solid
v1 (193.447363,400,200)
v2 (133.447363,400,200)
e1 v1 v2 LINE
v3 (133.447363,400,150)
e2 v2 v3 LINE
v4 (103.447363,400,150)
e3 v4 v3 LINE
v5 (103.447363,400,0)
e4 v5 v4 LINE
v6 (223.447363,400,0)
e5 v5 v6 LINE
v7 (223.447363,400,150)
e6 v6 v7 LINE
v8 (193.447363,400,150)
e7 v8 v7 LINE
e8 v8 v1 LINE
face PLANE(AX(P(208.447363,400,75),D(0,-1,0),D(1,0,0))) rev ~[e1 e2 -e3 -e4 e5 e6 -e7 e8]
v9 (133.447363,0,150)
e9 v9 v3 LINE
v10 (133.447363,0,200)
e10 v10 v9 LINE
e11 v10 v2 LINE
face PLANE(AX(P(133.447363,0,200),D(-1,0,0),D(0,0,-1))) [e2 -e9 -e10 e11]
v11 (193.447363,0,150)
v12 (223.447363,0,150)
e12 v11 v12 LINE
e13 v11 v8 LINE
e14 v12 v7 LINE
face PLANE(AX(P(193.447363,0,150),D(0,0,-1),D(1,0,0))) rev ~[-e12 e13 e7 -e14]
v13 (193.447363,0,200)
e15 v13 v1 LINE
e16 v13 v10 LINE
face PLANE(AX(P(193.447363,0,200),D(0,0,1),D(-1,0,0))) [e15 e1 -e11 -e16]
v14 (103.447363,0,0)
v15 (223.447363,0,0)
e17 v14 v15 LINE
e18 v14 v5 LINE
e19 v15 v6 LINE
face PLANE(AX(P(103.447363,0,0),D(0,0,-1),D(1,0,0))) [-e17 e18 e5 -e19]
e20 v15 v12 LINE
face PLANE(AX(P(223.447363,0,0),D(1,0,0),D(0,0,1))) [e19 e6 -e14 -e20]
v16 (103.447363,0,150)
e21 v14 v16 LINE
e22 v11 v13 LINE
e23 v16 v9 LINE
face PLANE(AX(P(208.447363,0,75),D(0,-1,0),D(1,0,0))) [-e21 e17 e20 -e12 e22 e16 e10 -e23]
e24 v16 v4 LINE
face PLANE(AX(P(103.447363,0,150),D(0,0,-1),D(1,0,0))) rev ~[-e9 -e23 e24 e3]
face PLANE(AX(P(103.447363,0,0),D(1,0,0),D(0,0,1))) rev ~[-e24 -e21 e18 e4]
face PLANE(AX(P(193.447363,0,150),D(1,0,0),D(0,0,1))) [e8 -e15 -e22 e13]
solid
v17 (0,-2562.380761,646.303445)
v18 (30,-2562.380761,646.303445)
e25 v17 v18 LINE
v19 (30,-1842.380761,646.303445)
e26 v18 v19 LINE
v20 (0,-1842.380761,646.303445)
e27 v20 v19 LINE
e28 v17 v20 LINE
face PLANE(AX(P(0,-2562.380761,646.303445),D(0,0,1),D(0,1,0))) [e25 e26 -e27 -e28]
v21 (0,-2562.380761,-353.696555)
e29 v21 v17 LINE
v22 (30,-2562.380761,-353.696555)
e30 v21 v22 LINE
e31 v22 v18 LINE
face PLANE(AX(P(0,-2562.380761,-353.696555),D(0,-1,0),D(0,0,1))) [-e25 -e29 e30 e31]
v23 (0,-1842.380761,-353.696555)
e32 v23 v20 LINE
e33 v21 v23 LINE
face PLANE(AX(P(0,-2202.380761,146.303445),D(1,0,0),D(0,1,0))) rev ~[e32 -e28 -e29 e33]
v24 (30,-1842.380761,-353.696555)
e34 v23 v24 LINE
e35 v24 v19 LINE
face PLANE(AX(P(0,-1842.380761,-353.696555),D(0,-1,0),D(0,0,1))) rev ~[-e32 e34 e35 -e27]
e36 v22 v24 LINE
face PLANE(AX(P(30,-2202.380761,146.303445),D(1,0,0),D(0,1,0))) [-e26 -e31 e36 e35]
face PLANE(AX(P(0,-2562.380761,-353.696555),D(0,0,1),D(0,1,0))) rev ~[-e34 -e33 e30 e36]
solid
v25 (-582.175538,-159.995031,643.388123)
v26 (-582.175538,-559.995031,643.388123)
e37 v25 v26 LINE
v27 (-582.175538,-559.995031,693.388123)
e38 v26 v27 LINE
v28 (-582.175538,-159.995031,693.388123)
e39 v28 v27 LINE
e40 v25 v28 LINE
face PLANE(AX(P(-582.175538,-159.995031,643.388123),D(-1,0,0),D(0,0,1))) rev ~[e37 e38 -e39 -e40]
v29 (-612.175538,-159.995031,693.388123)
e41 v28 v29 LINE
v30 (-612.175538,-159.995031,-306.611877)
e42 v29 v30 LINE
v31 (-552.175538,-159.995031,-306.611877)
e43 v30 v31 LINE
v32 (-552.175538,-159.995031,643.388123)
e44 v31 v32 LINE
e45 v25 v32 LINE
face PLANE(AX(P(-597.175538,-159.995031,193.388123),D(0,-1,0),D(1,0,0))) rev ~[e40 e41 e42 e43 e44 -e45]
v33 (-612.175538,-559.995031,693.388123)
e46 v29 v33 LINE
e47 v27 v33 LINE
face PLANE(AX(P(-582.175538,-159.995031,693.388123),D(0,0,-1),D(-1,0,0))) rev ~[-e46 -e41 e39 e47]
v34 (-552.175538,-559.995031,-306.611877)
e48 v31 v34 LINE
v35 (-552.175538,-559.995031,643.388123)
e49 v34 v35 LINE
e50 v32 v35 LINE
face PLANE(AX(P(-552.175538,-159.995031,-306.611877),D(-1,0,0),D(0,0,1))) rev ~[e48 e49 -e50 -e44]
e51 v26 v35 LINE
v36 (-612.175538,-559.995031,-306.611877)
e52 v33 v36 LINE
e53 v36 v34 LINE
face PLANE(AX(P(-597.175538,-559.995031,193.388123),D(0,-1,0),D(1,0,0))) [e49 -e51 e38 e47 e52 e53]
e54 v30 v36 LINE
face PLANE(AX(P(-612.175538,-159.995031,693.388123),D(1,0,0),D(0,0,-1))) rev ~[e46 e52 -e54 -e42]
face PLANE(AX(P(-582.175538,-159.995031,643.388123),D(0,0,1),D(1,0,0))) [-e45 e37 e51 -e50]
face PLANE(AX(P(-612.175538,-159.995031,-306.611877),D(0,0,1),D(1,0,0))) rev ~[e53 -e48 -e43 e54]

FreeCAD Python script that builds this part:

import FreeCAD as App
import Part
import Sketcher
Q = App.Units.Quantity

doc = App.newDocument("Part")
body = doc.addObject("PartDesign::Body", "Body")

sketch1 = body.newObject("Sketcher::SketchObject", "Sketch")
sketch1.AttachmentSupport = (doc.getObject("YZ_Plane"), [""])
sketch1.MapMode = "FlatFace"
sketch1.addGeometry(Part.LineSegment(App.Vector(-160, 677, 0), App.Vector(-160, -323, 0)), False)
sketch1.addGeometry(Part.LineSegment(App.Vector(-160, -323, 0), App.Vector(240, -323, 0)), False)
sketch1.addGeometry(Part.LineSegment(App.Vector(240, -323, 0), App.Vector(240, 677, 0)), False)
sketch1.addGeometry(Part.LineSegment(App.Vector(240, 677, 0), App.Vector(-160, 677, 0)), False)
sketch1.addConstraint(Sketcher.Constraint("Coincident", 0, 2, 1, 1))
sketch1.addConstraint(Sketcher.Constraint("Coincident", 1, 2, 2, 1))
sketch1.addConstraint(Sketcher.Constraint("Coincident", 2, 2, 3, 1))
sketch1.addConstraint(Sketcher.Constraint("Coincident", 3, 2, 0, 1))
sketch1.addConstraint(Sketcher.Constraint("Vertical", 0))
sketch1.addConstraint(Sketcher.Constraint("Horizontal", 1))
sketch1.addConstraint(Sketcher.Constraint("Vertical", 2))
sketch1.addConstraint(Sketcher.Constraint("Horizontal", 3))
sketch1.addConstraint(Sketcher.Constraint("DistanceX", 1, 1, 1, 2, Q("400 mm")))
sketch1.addConstraint(Sketcher.Constraint("DistanceY", 0, 2, 0, 1, Q("1000 mm")))
sketch1.addConstraint(Sketcher.Constraint("DistanceX", 0, 2, -1, 1, Q("159.995031 mm")))
sketch1.addConstraint(Sketcher.Constraint("DistanceY", 0, 2, -1, 1, Q("322.868704 mm")))
pad1 = body.newObject("PartDesign::Pad", "Pad")
pad1.Profile = sketch1
pad1.Length = 50
body2 = doc.addObject("PartDesign::Body", "Body001")

sketch2 = body2.newObject("Sketcher::SketchObject", "Sketch001")
sketch2.AttachmentSupport = (doc.getObject("XZ_Plane001"), [""])
sketch2.MapMode = "FlatFace"
sketch2.AttachmentOffset = App.Placement(App.Vector(0, 0, 159.995031), App.Rotation())
sketch2.addGeometry(Part.LineSegment(App.Vector(-582, 693, 0), App.Vector(-612, 693, 0)), False)
sketch2.addGeometry(Part.LineSegment(App.Vector(-612, 693, 0), App.Vector(-612, -307, 0)), False)
sketch2.addGeometry(Part.LineSegment(App.Vector(-612, -307, 0), App.Vector(-552, -307, 0)), False)
sketch2.addGeometry(Part.LineSegment(App.Vector(-552, -307, 0), App.Vector(-552, 643, 0)), False)
sketch2.addGeometry(Part.LineSegment(App.Vector(-552, 643, 0), App.Vector(-582, 643, 0)), False)
sketch2.addGeometry(Part.LineSegment(App.Vector(-582, 643, 0), App.Vector(-582, 693, 0)), False)
sketch2.addConstraint(Sketcher.Constraint("Coincident", 0, 2, 1, 1))
sketch2.addConstraint(Sketcher.Constraint("Coincident", 1, 2, 2, 1))
sketch2.addConstraint(Sketcher.Constraint("Coincident", 2, 2, 3, 1))
sketch2.addConstraint(Sketcher.Constraint("Coincident", 3, 2, 4, 1))
sketch2.addConstraint(Sketcher.Constraint("Coincident", 4, 2, 5, 1))
sketch2.addConstraint(Sketcher.Constraint("Coincident", 5, 2, 0, 1))
sketch2.addConstraint(Sketcher.Constraint("Horizontal", 0))
sketch2.addConstraint(Sketcher.Constraint("Vertical", 1))
sketch2.addConstraint(Sketcher.Constraint("Horizontal", 2))
sketch2.addConstraint(Sketcher.Constraint("Vertical", 3))
sketch2.addConstraint(Sketcher.Constraint("Horizontal", 4))
sketch2.addConstraint(Sketcher.Constraint("Vertical", 5))
sketch2.addConstraint(Sketcher.Constraint("Equal", 0, 4))
sketch2.addConstraint(Sketcher.Constraint("DistanceX", 0, 2, 0, 1, Q("30 mm")))
sketch2.addConstraint(Sketcher.Constraint("DistanceY", 1, 2, 1, 1, Q("1000 mm")))
sketch2.addConstraint(Sketcher.Constraint("DistanceY", 3, 1, 3, 2, Q("950 mm")))
sketch2.addConstraint(Sketcher.Constraint("DistanceX", 0, 2, -1, 1, Q("612.175538 mm")))
sketch2.addConstraint(Sketcher.Constraint("DistanceY", -1, 1, 0, 2, Q("693.388123 mm")))
pad2 = body2.newObject("PartDesign::Pad", "Pad001")
pad2.Profile = sketch2
pad2.Length = 400
body3 = doc.addObject("PartDesign::Body", "Body002")

sketch3 = body3.newObject("Sketcher::SketchObject", "Sketch002")
sketch3.AttachmentSupport = (doc.getObject("XZ_Plane002"), [""])
sketch3.MapMode = "FlatFace"
sketch3.addGeometry(Part.LineSegment(App.Vector(223, 0, 0), App.Vector(223, 150, 0)), False)
sketch3.addGeometry(Part.LineSegment(App.Vector(223, 150, 0), App.Vector(193, 150, 0)), False)
sketch3.addGeometry(Part.LineSegment(App.Vector(193, 150, 0), App.Vector(193, 200, 0)), False)
sketch3.addGeometry(Part.LineSegment(App.Vector(193, 200, 0), App.Vector(133, 200, 0)), False)
sketch3.addGeometry(Part.LineSegment(App.Vector(133, 200, 0), App.Vector(133, 150, 0)), False)
sketch3.addGeometry(Part.LineSegment(App.Vector(133, 150, 0), App.Vector(103, 150, 0)), False)
sketch3.addGeometry(Part.LineSegment(App.Vector(103, 150, 0), App.Vector(103, 0, 0)), False)
sketch3.addGeometry(Part.LineSegment(App.Vector(103, 0, 0), App.Vector(223, 0, 0)), False)
sketch3.addConstraint(Sketcher.Constraint("Coincident", 0, 2, 1, 1))
sketch3.addConstraint(Sketcher.Constraint("Coincident", 1, 2, 2, 1))
sketch3.addConstraint(Sketcher.Constraint("Coincident", 2, 2, 3, 1))
sketch3.addConstraint(Sketcher.Constraint("Coincident", 3, 2, 4, 1))
sketch3.addConstraint(Sketcher.Constraint("Coincident", 4, 2, 5, 1))
sketch3.addConstraint(Sketcher.Constraint("Coincident", 5, 2, 6, 1))
sketch3.addConstraint(Sketcher.Constraint("Coincident", 6, 2, 7, 1))
sketch3.addConstraint(Sketcher.Constraint("Coincident", 7, 2, 0, 1))
sketch3.addConstraint(Sketcher.Constraint("Vertical", 0))
sketch3.addConstraint(Sketcher.Constraint("Horizontal", 1))
sketch3.addConstraint(Sketcher.Constraint("Vertical", 2))
sketch3.addConstraint(Sketcher.Constraint("Horizontal", 3))
sketch3.addConstraint(Sketcher.Constraint("Vertical", 4))
sketch3.addConstraint(Sketcher.Constraint("Horizontal", 5))
sketch3.addConstraint(Sketcher.Constraint("Vertical", 6))
sketch3.addConstraint(Sketcher.Constraint("Horizontal", 7))
sketch3.addConstraint(Sketcher.Constraint("PointOnObject", 6, 2, -1))
sketch3.addConstraint(Sketcher.Constraint("Horizontal", 1, 2, 4, 2))
sketch3.addConstraint(Sketcher.Constraint("Equal", 1, 5))
sketch3.addConstraint(Sketcher.Constraint("DistanceX", 1, 2, 1, 1, Q("30 mm")))
sketch3.addConstraint(Sketcher.Constraint("DistanceX", 3, 2, 3, 1, Q("60 mm")))
sketch3.addConstraint(Sketcher.Constraint("DistanceY", 0, 1, 0, 2, Q("150 mm")))
sketch3.addConstraint(Sketcher.Constraint("DistanceY", 2, 1, 2, 2, Q("50 mm")))
sketch3.addConstraint(Sketcher.Constraint("DistanceX", -1, 1, 0, 2, Q("223.447363 mm")))
pad3 = body3.newObject("PartDesign::Pad", "Pad002")
pad3.Profile = sketch3
pad3.Length = 400
pad3.Reversed = True
body4 = doc.addObject("PartDesign::Body", "Body003")

sketch4 = body4.newObject("Sketcher::SketchObject", "Sketch003")
sketch4.AttachmentSupport = (doc.getObject("YZ_Plane003"), [""])
sketch4.MapMode = "FlatFace"
sketch4.addGeometry(Part.LineSegment(App.Vector(-2562, 646, 0), App.Vector(-2562, -354, 0)), False)
sketch4.addGeometry(Part.LineSegment(App.Vector(-2562, -354, 0), App.Vector(-1842, -354, 0)), False)
sketch4.addGeometry(Part.LineSegment(App.Vector(-1842, -354, 0), App.Vector(-1842, 646, 0)), False)
sketch4.addGeometry(Part.LineSegment(App.Vector(-1842, 646, 0), App.Vector(-2562, 646, 0)), False)
sketch4.addConstraint(Sketcher.Constraint("Coincident", 0, 2, 1, 1))
sketch4.addConstraint(Sketcher.Constraint("Coincident", 1, 2, 2, 1))
sketch4.addConstraint(Sketcher.Constraint("Coincident", 2, 2, 3, 1))
sketch4.addConstraint(Sketcher.Constraint("Coincident", 3, 2, 0, 1))
sketch4.addConstraint(Sketcher.Constraint("Vertical", 0))
sketch4.addConstraint(Sketcher.Constraint("Horizontal", 1))
sketch4.addConstraint(Sketcher.Constraint("Vertical", 2))
sketch4.addConstraint(Sketcher.Constraint("Horizontal", 3))
sketch4.addConstraint(Sketcher.Constraint("DistanceX", 1, 1, 1, 2, Q("720 mm")))
sketch4.addConstraint(Sketcher.Constraint("DistanceY", 0, 2, 0, 1, Q("1000 mm")))
sketch4.addConstraint(Sketcher.Constraint("DistanceX", 0, 2, -1, 1, Q("2562.380761 mm")))
sketch4.addConstraint(Sketcher.Constraint("DistanceY", 0, 2, -1, 1, Q("353.696555 mm")))
pad4 = body4.newObject("PartDesign::Pad", "Pad003")
pad4.Profile = sketch4
pad4.Length = 30
body.Visibility = False

doc.recompute()
